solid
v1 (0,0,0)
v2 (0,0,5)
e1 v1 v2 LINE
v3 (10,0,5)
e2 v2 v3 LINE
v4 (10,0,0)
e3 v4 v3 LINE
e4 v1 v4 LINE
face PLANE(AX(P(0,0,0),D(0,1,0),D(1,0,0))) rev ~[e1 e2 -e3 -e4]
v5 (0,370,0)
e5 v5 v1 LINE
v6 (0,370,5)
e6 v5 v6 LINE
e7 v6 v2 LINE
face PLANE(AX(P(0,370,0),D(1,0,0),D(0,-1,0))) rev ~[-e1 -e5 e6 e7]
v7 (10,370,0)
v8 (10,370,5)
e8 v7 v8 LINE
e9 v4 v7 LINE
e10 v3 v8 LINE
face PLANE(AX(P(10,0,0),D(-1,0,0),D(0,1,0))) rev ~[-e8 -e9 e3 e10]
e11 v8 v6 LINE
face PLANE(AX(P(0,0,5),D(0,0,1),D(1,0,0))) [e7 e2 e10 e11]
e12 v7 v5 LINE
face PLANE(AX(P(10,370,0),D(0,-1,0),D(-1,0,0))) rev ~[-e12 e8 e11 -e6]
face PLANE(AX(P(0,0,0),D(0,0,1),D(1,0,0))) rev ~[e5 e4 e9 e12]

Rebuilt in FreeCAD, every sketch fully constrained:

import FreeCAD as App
import Part
import Sketcher

doc = App.newDocument("Part")
body = doc.addObject("PartDesign::Body", "Body")

# Sketch on XY plane
sketch1 = doc.addObject("Sketcher::SketchObject", "Sketch")
body.addObject(sketch1)
sketch1.AttachmentSupport = (doc.XY_Plane, [""])
sketch1.MapMode = "FlatFace"
sketch1.addGeometry([
    Part.LineSegment(App.Vector(0, 370, 0), App.Vector(0, 0, 0)),
    Part.LineSegment(App.Vector(0, 0, 0), App.Vector(10, 0, 0)),
    Part.LineSegment(App.Vector(10, 0, 0), App.Vector(10, 370, 0)),
    Part.LineSegment(App.Vector(10, 370, 0), App.Vector(0, 370, 0)),
], False)
sketch1.addConstraint([
    Sketcher.Constraint("Coincident", 0, 2, 1, 1),
    Sketcher.Constraint("Coincident", 1, 2, 2, 1),
    Sketcher.Constraint("Coincident", 2, 2, 3, 1),
    Sketcher.Constraint("Coincident", 3, 2, 0, 1),
    Sketcher.Constraint("Vertical", 0),
    Sketcher.Constraint("Horizontal", 1),
    Sketcher.Constraint("Vertical", 2),
    Sketcher.Constraint("Horizontal", 3),
    Sketcher.Constraint("Coincident", 0, 2, -1, 1),
    Sketcher.Constraint("DistanceX", 1, 1, 1, 2, 10.0),
    Sketcher.Constraint("DistanceY", 0, 2, 0, 1, 370.0),
])
pad1 = doc.addObject("PartDesign::Pad", "Pad")
body.addObject(pad1)
pad1.Profile = sketch1
pad1.Length = 5

doc.recompute()
